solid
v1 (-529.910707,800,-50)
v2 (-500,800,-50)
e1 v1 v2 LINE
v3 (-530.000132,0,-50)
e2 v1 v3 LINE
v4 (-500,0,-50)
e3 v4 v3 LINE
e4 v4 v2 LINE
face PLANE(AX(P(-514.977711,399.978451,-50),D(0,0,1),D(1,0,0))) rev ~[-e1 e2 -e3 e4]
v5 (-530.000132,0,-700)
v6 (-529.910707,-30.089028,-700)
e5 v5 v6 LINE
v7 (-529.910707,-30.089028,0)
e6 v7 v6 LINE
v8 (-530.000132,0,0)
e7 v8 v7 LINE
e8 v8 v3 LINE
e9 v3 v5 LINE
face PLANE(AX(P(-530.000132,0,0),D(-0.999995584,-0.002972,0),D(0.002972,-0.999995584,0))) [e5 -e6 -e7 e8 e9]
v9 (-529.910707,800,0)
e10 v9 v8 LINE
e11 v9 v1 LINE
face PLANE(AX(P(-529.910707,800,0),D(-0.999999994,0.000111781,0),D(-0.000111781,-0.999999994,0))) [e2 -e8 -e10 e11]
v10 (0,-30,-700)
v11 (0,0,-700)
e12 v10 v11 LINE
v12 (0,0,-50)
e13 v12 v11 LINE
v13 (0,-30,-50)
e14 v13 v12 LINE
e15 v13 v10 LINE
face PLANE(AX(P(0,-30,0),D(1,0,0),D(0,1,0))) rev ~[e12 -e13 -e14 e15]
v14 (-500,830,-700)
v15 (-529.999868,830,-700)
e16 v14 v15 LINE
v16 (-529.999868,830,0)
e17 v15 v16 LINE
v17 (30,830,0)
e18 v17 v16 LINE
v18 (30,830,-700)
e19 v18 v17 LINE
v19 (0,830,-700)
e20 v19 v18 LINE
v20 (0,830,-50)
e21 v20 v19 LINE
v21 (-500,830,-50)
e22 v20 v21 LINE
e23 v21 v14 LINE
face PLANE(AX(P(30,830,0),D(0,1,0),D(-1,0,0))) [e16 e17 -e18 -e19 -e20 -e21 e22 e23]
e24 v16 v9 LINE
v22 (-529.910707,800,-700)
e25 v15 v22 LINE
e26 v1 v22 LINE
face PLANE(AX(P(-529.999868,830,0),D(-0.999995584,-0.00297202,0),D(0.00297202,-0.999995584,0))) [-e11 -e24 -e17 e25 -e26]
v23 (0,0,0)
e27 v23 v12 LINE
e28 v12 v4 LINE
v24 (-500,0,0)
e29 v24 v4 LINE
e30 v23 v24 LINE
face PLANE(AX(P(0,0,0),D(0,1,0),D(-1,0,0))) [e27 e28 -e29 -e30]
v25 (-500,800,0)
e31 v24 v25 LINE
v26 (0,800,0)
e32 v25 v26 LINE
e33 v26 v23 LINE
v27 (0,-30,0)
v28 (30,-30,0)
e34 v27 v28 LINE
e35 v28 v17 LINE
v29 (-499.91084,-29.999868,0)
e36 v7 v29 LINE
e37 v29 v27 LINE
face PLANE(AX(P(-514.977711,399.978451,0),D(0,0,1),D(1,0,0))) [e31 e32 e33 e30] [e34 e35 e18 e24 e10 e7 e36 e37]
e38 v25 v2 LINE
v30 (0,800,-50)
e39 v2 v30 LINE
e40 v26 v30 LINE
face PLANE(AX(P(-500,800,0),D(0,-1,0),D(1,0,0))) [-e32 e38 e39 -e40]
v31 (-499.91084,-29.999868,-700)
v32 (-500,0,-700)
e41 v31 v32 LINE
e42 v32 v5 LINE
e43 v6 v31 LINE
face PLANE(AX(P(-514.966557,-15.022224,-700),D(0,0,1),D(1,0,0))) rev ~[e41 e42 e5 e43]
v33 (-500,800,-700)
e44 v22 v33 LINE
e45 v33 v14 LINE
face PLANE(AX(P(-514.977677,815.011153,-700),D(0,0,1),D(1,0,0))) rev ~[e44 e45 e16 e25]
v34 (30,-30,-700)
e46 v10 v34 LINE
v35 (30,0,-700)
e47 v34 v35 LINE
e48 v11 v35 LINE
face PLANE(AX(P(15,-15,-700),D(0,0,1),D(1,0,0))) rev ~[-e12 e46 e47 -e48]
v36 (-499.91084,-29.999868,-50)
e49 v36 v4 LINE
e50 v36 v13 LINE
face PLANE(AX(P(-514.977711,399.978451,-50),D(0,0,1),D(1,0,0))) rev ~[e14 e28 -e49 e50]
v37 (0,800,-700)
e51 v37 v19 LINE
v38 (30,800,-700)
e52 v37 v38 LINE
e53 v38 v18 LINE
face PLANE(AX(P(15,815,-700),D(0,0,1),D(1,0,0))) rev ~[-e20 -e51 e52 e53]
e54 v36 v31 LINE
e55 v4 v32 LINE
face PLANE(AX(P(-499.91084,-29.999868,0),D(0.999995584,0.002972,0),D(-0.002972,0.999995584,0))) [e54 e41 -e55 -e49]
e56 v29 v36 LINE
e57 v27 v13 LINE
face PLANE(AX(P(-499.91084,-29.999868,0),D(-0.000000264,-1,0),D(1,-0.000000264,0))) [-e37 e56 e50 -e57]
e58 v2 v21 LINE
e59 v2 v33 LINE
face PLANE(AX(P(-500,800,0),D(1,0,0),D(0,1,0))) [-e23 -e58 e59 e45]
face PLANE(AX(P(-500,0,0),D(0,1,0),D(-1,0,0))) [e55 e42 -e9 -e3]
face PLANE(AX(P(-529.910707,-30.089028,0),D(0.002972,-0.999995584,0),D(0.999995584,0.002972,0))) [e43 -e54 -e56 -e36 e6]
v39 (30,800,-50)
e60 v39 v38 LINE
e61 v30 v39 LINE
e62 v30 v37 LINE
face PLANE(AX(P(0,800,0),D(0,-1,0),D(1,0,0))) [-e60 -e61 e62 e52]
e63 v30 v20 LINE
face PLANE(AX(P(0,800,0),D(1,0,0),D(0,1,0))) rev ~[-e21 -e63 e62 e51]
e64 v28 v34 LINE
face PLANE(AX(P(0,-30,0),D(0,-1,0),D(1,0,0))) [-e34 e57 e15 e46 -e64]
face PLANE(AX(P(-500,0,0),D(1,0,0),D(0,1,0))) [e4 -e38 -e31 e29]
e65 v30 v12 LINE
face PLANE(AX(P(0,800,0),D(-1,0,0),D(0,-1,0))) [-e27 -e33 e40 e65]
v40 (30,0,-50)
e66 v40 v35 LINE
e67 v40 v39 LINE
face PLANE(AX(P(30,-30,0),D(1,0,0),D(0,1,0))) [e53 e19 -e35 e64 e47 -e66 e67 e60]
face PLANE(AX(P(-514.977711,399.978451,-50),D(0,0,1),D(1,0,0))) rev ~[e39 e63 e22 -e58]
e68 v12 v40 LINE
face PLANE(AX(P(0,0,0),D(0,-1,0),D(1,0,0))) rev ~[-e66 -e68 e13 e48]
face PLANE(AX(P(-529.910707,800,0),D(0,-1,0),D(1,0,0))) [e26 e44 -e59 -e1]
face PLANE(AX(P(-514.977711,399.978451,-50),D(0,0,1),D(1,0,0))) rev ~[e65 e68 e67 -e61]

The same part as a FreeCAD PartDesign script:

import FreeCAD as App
import Part
import Sketcher
Q = App.Units.Quantity

doc = App.newDocument("Part")
body = doc.addObject("PartDesign::Body", "Body")

sketch1 = body.newObject("Sketcher::SketchObject", "Sketch")
sketch1.AttachmentSupport = (doc.getObject("XY_Plane"), [""])
sketch1.MapMode = "FlatFace"
sketch1.addGeometry([
    Part.LineSegment(App.Vector(-530, 800, 0), App.Vector(-530, 0, 0)),
    Part.LineSegment(App.Vector(-530, 0, 0), App.Vector(-530, -30, 0)),
    Part.LineSegment(App.Vector(-530, -30, 0), App.Vector(-500, -30, 0)),
    Part.LineSegment(App.Vector(-500, -30, 0), App.Vector(0, -30, 0)),
    Part.LineSegment(App.Vector(0, -30, 0), App.Vector(30, -30, 0)),
    Part.LineSegment(App.Vector(30, -30, 0), App.Vector(30, 830, 0)),
    Part.LineSegment(App.Vector(30, 830, 0), App.Vector(-530, 830, 0)),
    Part.LineSegment(App.Vector(-530, 830, 0), App.Vector(-530, 800, 0)),
    Part.LineSegment(App.Vector(0, 0, 0), App.Vector(-500, 0, 0)),
    Part.LineSegment(App.Vector(-500, 0, 0), App.Vector(-500, 800, 0)),
    Part.LineSegment(App.Vector(-500, 800, 0), App.Vector(0, 800, 0)),
    Part.LineSegment(App.Vector(0, 800, 0), App.Vector(0, 0, 0)),
], False)
sketch1.addConstraint([
    Sketcher.Constraint("Coincident", 0, 2, 1, 1),
    Sketcher.Constraint("Coincident", 1, 2, 2, 1),
    Sketcher.Constraint("Coincident", 2, 2, 3, 1),
    Sketcher.Constraint("Coincident", 3, 2, 4, 1),
    Sketcher.Constraint("Coincident", 4, 2, 5, 1),
    Sketcher.Constraint("Coincident", 5, 2, 6, 1),
    Sketcher.Constraint("Coincident", 6, 2, 7, 1),
    Sketcher.Constraint("Coincident", 7, 2, 0, 1),
    Sketcher.Constraint("Coincident", 8, 2, 9, 1),
    Sketcher.Constraint("Coincident", 9, 2, 10, 1),
    Sketcher.Constraint("Coincident", 10, 2, 11, 1),
    Sketcher.Constraint("Coincident", 11, 2, 8, 1),
    Sketcher.Constraint("Horizontal", 4),
    Sketcher.Constraint("Vertical", 5),
    Sketcher.Constraint("Horizontal", 6),
    Sketcher.Constraint("Horizontal", 8),
    Sketcher.Constraint("Vertical", 9),
    Sketcher.Constraint("Horizontal", 10),
    Sketcher.Constraint("Vertical", 11),
    Sketcher.Constraint("Coincident", 11, 2, -1, 1),
    Sketcher.Constraint("PointOnObject", 0, 2, -1),
    Sketcher.Constraint("PointOnObject", 3, 2, -2),
    Sketcher.Constraint("Perpendicular", 1, 2),
    Sketcher.Constraint("Perpendicular", 2, 7),
    Sketcher.Constraint("Horizontal", 7, 2, 9, 2),
    Sketcher.Constraint("Vertical", 1, 2, 7, 2),
    Sketcher.Constraint("DistanceX", 4, 1, 4, 2, Q("30 mm")),
    Sketcher.Constraint("DistanceX", 8, 2, 8, 1, Q("500 mm")),
    Sketcher.Constraint("DistanceY", 5, 1, 5, 2, Q("860 mm")),
    Sketcher.Constraint("DistanceY", 9, 1, 9, 2, Q("800 mm")),
    Sketcher.Constraint("Angle", 3, Q("-0.000015 deg")),
    Sketcher.Constraint("Distance", 2, Q("29.999999 mm")),
    Sketcher.Constraint("DistanceY", 3, 2, -1, 1, Q("30 mm")),
    Sketcher.Constraint("DistanceX", 6, 2, 6, 1, Q("559.999868 mm")),
    Sketcher.Constraint("Distance", 1, Q("30.089161 mm")),
])
pad1 = body.newObject("PartDesign::Pad", "Pad")
pad1.Profile = sketch1
pad1.Length = 50
pad1.Reversed = True

sketch2 = body.newObject("Sketcher::SketchObject", "Sketch001")
sketch2.AttachmentSupport = (doc.getObject("XY_Plane"), [""])
sketch2.MapMode = "FlatFace"
sketch2.addGeometry([
    Part.LineSegment(App.Vector(0, 0, 0), App.Vector(0, -30, 0)),
    Part.LineSegment(App.Vector(0, -30, 0), App.Vector(30, -30, 0)),
    Part.LineSegment(App.Vector(30, -30, 0), App.Vector(30, 0, 0)),
    Part.LineSegment(App.Vector(30, 0, 0), App.Vector(0, 0, 0)),
    Part.LineSegment(App.Vector(-500, -30, 0), App.Vector(-500, 0, 0)),
    Part.LineSegment(App.Vector(-500, 0, 0), App.Vector(-530, 0, 0)),
    Part.LineSegment(App.Vector(-530, 0, 0), App.Vector(-530, -30, 0)),
    Part.LineSegment(App.Vector(-530, -30, 0), App.Vector(-500, -30, 0)),
    Part.LineSegment(App.Vector(-530, 800, 0), App.Vector(-500, 800, 0)),
    Part.LineSegment(App.Vector(-500, 800, 0), App.Vector(-500, 830, 0)),
    Part.LineSegment(App.Vector(-500, 830, 0), App.Vector(-530, 830, 0)),
    Part.LineSegment(App.Vector(-530, 830, 0), App.Vector(-530, 800, 0)),
    Part.LineSegment(App.Vector(0, 830, 0), App.Vector(0, 800, 0)),
    Part.LineSegment(App.Vector(0, 800, 0), App.Vector(30, 800, 0)),
    Part.LineSegment(App.Vector(30, 800, 0), App.Vector(30, 830, 0)),
    Part.LineSegment(App.Vector(30, 830, 0), App.Vector(0, 830, 0)),
], False)
sketch2.addConstraint([
    Sketcher.Constraint("Coincident", 0, 2, 1, 1),
    Sketcher.Constraint("Coincident", 1, 2, 2, 1),
    Sketcher.Constraint("Coincident", 2, 2, 3, 1),
    Sketcher.Constraint("Coincident", 3, 2, 0, 1),
    Sketcher.Constraint("Coincident", 4, 2, 5, 1),
    Sketcher.Constraint("Coincident", 5, 2, 6, 1),
    Sketcher.Constraint("Coincident", 6, 2, 7, 1),
    Sketcher.Constraint("Coincident", 7, 2, 4, 1),
    Sketcher.Constraint("Coincident", 8, 2, 9, 1),
    Sketcher.Constraint("Coincident", 9, 2, 10, 1),
    Sketcher.Constraint("Coincident", 10, 2, 11, 1),
    Sketcher.Constraint("Coincident", 11, 2, 8, 1),
    Sketcher.Constraint("Coincident", 12, 2, 13, 1),
    Sketcher.Constraint("Coincident", 13, 2, 14, 1),
    Sketcher.Constraint("Coincident", 14, 2, 15, 1),
    Sketcher.Constraint("Coincident", 15, 2, 12, 1),
    Sketcher.Constraint("Vertical", 0),
    Sketcher.Constraint("Horizontal", 1),
    Sketcher.Constraint("Vertical", 2),
    Sketcher.Constraint("Horizontal", 3),
    Sketcher.Constraint("Horizontal", 5),
    Sketcher.Constraint("Horizontal", 8),
    Sketcher.Constraint("Vertical", 9),
    Sketcher.Constraint("Horizontal", 10),
    Sketcher.Constraint("Vertical", 12),
    Sketcher.Constraint("Horizontal", 13),
    Sketcher.Constraint("Vertical", 14),
    Sketcher.Constraint("Horizontal", 15),
    Sketcher.Constraint("Coincident", 3, 2, -1, 1),
    Sketcher.Constraint("PointOnObject", 4, 2, -1),
    Sketcher.Constraint("PointOnObject", 12, 2, -2),
    Sketcher.Constraint("Parallel", 4, 6),
    Sketcher.Constraint("Perpendicular", 6, 7),
    Sketcher.Constraint("Perpendicular", 7, 11),
    Sketcher.Constraint("Horizontal", 11, 2, 12, 2),
    Sketcher.Constraint("Horizontal", 10, 2, 14, 2),
    Sketcher.Constraint("Vertical", 4, 2, 8, 2),
    Sketcher.Constraint("Vertical", 6, 2, 11, 2),
    Sketcher.Constraint("Vertical", 2, 2, 13, 2),
    Sketcher.Constraint("Equal", 15, 0),
    Sketcher.Constraint("Equal", 2, 9),
    Sketcher.Constraint("Equal", 4, 7),
    Sketcher.Constraint("DistanceX", 1, 1, 1, 2, Q("30 mm")),
    Sketcher.Constraint("Distance", 4, Q("30 mm")),
    Sketcher.Constraint("DistanceX", 4, 2, -1, 1, Q("500 mm")),
    Sketcher.Constraint("DistanceY", -1, 1, 8, 2, Q("800 mm")),
    Sketcher.Constraint("Distance", 6, Q("30.089161 mm")),
])
pad2 = body.newObject("PartDesign::Pad", "Pad001")
pad2.Profile = sketch2
pad2.Length = 700
pad2.Reversed = True

doc.recompute()
